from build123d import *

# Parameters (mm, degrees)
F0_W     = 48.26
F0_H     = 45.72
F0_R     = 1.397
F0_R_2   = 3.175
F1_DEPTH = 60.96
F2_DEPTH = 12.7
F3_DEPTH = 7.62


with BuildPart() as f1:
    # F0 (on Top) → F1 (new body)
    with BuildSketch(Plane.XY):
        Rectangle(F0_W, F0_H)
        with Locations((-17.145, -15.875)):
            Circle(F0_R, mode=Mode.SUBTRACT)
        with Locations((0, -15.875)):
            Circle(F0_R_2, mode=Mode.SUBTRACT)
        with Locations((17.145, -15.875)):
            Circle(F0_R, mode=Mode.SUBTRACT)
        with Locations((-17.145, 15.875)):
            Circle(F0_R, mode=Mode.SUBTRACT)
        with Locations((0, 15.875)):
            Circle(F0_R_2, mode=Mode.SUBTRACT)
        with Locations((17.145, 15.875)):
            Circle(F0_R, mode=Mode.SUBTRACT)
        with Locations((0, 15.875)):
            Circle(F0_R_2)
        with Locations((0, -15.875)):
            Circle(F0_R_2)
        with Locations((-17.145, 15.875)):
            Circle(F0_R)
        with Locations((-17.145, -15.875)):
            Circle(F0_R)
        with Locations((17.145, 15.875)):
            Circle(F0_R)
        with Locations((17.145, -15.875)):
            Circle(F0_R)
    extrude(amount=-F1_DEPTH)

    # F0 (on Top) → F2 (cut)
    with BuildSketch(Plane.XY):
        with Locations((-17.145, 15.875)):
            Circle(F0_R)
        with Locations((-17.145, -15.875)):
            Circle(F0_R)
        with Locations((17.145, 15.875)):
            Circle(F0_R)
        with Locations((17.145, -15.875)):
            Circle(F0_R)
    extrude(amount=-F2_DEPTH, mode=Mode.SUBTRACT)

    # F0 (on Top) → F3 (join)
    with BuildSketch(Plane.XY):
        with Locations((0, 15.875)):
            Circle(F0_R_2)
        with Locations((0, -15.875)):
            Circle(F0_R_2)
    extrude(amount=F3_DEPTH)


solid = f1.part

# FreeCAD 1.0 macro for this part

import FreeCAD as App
import Part
import Sketcher
from FreeCAD import Vector
Q = App.Units.Quantity


def add_polygon(sketch, points):
    """Adds a closed chain of lines whose ends are joined by coincident constraints."""
    first, n = sketch.GeometryCount, len(points)
    for a, b in zip(points, points[1:] + points[:1]):
        sketch.addGeometry(Part.LineSegment(App.Vector(*a, 0), App.Vector(*b, 0)), False)
    for i in range(n):
        sketch.addConstraint(Sketcher.Constraint("Coincident", first + i, 2, first + (i + 1) % n, 1))

doc = App.newDocument("Part")
body = doc.addObject("PartDesign::Body", "Body")

# Sketch on XY plane
sketch1 = doc.addObject("Sketcher::SketchObject", "Sketch")
body.addObject(sketch1)
sketch1.AttachmentSupport = (doc.XY_Plane, [""])
sketch1.MapMode = "FlatFace"
add_polygon(sketch1, [(-24.13, 22.86), (-24.13, -22.86), (24.13, -22.86), (24.13, 22.86)])  # lines 0-3
sketch1.addConstraint(Sketcher.Constraint("Vertical", 0))
sketch1.addConstraint(Sketcher.Constraint("Horizontal", 1))
sketch1.addConstraint(Sketcher.Constraint("Vertical", 2))
sketch1.addConstraint(Sketcher.Constraint("Horizontal", 3))
sketch1.addConstraint(Sketcher.Constraint("Symmetric", 0, 2, 2, 2, -1, 1))
sketch1.addConstraint(Sketcher.Constraint("DistanceX", 1, 1, 1, 2, Q("1.9 in")))
sketch1.addConstraint(Sketcher.Constraint("DistanceY", 0, 2, 0, 1, Q("1.8 in")))
pad1 = doc.addObject("PartDesign::Pad", "Pad")
body.addObject(pad1)
pad1.Profile = sketch1
pad1.Length = Q("2.4 in")
pad1.Reversed = True

# Sketch on XY plane
sketch2 = doc.addObject("Sketcher::SketchObject", "Sketch001")
body.addObject(sketch2)
sketch2.AttachmentSupport = (doc.XY_Plane, [""])
sketch2.MapMode = "FlatFace"
sketch2.addGeometry(Part.Circle(Vector(-17.145, 15.875, 0), Vector(0, 0, 1), 1.397), False)
sketch2.addGeometry(Part.Circle(Vector(-17.145, -15.875, 0), Vector(0, 0, 1), 1.397), False)
sketch2.addGeometry(Part.Circle(Vector(17.145, 15.875, 0), Vector(0, 0, 1), 1.397), False)
sketch2.addGeometry(Part.Circle(Vector(17.145, -15.875, 0), Vector(0, 0, 1), 1.397), False)
sketch2.addConstraint(Sketcher.Constraint("Equal", 0, 1))
sketch2.addConstraint(Sketcher.Constraint("Equal", 1, 2))
sketch2.addConstraint(Sketcher.Constraint("Equal", 2, 3))
sketch2.addConstraint(Sketcher.Constraint("Symmetric", 1, 3, 2, 3, -1, 1))
sketch2.addConstraint(Sketcher.Constraint("Symmetric", 0, 3, 3, 3, -1, 1))
sketch2.addConstraint(Sketcher.Constraint("Symmetric", 0, 3, 2, 3, -2))
sketch2.addConstraint(Sketcher.Constraint("Diameter", 0, Q("0.11 in")))
sketch2.addConstraint(Sketcher.Constraint("DistanceY", 1, 3, 0, 3, Q("1.25 in")))
sketch2.addConstraint(Sketcher.Constraint("DistanceX", 0, 3, 2, 3, Q("1.35 in")))
pocket1 = doc.addObject("PartDesign::Pocket", "Pocket")
body.addObject(pocket1)
pocket1.Profile = sketch2
pocket1.Length = Q("0.5 in")

# Sketch on XY plane
sketch3 = doc.addObject("Sketcher::SketchObject", "Sketch002")
body.addObject(sketch3)
sketch3.AttachmentSupport = (doc.XY_Plane, [""])
sketch3.MapMode = "FlatFace"
sketch3.addGeometry(Part.Circle(Vector(0, 15.875, 0), Vector(0, 0, 1), 3.175), False)
sketch3.addGeometry(Part.Circle(Vector(0, -15.875, 0), Vector(0, 0, 1), 3.175), False)
sketch3.addConstraint(Sketcher.Constraint("Equal", 0, 1))
sketch3.addConstraint(Sketcher.Constraint("Symmetric", 0, 3, 1, 3, -1, 1))
sketch3.addConstraint(Sketcher.Constraint("PointOnObject", 0, 3, -2))
sketch3.addConstraint(Sketcher.Constraint("Diameter", 0, Q("0.25 in")))
sketch3.addConstraint(Sketcher.Constraint("DistanceY", 1, 3, 0, 3, Q("1.25 in")))
pad2 = doc.addObject("PartDesign::Pad", "Pad001")
body.addObject(pad2)
pad2.Profile = sketch3
pad2.Length = Q("0.3 in")

doc.recompute()
